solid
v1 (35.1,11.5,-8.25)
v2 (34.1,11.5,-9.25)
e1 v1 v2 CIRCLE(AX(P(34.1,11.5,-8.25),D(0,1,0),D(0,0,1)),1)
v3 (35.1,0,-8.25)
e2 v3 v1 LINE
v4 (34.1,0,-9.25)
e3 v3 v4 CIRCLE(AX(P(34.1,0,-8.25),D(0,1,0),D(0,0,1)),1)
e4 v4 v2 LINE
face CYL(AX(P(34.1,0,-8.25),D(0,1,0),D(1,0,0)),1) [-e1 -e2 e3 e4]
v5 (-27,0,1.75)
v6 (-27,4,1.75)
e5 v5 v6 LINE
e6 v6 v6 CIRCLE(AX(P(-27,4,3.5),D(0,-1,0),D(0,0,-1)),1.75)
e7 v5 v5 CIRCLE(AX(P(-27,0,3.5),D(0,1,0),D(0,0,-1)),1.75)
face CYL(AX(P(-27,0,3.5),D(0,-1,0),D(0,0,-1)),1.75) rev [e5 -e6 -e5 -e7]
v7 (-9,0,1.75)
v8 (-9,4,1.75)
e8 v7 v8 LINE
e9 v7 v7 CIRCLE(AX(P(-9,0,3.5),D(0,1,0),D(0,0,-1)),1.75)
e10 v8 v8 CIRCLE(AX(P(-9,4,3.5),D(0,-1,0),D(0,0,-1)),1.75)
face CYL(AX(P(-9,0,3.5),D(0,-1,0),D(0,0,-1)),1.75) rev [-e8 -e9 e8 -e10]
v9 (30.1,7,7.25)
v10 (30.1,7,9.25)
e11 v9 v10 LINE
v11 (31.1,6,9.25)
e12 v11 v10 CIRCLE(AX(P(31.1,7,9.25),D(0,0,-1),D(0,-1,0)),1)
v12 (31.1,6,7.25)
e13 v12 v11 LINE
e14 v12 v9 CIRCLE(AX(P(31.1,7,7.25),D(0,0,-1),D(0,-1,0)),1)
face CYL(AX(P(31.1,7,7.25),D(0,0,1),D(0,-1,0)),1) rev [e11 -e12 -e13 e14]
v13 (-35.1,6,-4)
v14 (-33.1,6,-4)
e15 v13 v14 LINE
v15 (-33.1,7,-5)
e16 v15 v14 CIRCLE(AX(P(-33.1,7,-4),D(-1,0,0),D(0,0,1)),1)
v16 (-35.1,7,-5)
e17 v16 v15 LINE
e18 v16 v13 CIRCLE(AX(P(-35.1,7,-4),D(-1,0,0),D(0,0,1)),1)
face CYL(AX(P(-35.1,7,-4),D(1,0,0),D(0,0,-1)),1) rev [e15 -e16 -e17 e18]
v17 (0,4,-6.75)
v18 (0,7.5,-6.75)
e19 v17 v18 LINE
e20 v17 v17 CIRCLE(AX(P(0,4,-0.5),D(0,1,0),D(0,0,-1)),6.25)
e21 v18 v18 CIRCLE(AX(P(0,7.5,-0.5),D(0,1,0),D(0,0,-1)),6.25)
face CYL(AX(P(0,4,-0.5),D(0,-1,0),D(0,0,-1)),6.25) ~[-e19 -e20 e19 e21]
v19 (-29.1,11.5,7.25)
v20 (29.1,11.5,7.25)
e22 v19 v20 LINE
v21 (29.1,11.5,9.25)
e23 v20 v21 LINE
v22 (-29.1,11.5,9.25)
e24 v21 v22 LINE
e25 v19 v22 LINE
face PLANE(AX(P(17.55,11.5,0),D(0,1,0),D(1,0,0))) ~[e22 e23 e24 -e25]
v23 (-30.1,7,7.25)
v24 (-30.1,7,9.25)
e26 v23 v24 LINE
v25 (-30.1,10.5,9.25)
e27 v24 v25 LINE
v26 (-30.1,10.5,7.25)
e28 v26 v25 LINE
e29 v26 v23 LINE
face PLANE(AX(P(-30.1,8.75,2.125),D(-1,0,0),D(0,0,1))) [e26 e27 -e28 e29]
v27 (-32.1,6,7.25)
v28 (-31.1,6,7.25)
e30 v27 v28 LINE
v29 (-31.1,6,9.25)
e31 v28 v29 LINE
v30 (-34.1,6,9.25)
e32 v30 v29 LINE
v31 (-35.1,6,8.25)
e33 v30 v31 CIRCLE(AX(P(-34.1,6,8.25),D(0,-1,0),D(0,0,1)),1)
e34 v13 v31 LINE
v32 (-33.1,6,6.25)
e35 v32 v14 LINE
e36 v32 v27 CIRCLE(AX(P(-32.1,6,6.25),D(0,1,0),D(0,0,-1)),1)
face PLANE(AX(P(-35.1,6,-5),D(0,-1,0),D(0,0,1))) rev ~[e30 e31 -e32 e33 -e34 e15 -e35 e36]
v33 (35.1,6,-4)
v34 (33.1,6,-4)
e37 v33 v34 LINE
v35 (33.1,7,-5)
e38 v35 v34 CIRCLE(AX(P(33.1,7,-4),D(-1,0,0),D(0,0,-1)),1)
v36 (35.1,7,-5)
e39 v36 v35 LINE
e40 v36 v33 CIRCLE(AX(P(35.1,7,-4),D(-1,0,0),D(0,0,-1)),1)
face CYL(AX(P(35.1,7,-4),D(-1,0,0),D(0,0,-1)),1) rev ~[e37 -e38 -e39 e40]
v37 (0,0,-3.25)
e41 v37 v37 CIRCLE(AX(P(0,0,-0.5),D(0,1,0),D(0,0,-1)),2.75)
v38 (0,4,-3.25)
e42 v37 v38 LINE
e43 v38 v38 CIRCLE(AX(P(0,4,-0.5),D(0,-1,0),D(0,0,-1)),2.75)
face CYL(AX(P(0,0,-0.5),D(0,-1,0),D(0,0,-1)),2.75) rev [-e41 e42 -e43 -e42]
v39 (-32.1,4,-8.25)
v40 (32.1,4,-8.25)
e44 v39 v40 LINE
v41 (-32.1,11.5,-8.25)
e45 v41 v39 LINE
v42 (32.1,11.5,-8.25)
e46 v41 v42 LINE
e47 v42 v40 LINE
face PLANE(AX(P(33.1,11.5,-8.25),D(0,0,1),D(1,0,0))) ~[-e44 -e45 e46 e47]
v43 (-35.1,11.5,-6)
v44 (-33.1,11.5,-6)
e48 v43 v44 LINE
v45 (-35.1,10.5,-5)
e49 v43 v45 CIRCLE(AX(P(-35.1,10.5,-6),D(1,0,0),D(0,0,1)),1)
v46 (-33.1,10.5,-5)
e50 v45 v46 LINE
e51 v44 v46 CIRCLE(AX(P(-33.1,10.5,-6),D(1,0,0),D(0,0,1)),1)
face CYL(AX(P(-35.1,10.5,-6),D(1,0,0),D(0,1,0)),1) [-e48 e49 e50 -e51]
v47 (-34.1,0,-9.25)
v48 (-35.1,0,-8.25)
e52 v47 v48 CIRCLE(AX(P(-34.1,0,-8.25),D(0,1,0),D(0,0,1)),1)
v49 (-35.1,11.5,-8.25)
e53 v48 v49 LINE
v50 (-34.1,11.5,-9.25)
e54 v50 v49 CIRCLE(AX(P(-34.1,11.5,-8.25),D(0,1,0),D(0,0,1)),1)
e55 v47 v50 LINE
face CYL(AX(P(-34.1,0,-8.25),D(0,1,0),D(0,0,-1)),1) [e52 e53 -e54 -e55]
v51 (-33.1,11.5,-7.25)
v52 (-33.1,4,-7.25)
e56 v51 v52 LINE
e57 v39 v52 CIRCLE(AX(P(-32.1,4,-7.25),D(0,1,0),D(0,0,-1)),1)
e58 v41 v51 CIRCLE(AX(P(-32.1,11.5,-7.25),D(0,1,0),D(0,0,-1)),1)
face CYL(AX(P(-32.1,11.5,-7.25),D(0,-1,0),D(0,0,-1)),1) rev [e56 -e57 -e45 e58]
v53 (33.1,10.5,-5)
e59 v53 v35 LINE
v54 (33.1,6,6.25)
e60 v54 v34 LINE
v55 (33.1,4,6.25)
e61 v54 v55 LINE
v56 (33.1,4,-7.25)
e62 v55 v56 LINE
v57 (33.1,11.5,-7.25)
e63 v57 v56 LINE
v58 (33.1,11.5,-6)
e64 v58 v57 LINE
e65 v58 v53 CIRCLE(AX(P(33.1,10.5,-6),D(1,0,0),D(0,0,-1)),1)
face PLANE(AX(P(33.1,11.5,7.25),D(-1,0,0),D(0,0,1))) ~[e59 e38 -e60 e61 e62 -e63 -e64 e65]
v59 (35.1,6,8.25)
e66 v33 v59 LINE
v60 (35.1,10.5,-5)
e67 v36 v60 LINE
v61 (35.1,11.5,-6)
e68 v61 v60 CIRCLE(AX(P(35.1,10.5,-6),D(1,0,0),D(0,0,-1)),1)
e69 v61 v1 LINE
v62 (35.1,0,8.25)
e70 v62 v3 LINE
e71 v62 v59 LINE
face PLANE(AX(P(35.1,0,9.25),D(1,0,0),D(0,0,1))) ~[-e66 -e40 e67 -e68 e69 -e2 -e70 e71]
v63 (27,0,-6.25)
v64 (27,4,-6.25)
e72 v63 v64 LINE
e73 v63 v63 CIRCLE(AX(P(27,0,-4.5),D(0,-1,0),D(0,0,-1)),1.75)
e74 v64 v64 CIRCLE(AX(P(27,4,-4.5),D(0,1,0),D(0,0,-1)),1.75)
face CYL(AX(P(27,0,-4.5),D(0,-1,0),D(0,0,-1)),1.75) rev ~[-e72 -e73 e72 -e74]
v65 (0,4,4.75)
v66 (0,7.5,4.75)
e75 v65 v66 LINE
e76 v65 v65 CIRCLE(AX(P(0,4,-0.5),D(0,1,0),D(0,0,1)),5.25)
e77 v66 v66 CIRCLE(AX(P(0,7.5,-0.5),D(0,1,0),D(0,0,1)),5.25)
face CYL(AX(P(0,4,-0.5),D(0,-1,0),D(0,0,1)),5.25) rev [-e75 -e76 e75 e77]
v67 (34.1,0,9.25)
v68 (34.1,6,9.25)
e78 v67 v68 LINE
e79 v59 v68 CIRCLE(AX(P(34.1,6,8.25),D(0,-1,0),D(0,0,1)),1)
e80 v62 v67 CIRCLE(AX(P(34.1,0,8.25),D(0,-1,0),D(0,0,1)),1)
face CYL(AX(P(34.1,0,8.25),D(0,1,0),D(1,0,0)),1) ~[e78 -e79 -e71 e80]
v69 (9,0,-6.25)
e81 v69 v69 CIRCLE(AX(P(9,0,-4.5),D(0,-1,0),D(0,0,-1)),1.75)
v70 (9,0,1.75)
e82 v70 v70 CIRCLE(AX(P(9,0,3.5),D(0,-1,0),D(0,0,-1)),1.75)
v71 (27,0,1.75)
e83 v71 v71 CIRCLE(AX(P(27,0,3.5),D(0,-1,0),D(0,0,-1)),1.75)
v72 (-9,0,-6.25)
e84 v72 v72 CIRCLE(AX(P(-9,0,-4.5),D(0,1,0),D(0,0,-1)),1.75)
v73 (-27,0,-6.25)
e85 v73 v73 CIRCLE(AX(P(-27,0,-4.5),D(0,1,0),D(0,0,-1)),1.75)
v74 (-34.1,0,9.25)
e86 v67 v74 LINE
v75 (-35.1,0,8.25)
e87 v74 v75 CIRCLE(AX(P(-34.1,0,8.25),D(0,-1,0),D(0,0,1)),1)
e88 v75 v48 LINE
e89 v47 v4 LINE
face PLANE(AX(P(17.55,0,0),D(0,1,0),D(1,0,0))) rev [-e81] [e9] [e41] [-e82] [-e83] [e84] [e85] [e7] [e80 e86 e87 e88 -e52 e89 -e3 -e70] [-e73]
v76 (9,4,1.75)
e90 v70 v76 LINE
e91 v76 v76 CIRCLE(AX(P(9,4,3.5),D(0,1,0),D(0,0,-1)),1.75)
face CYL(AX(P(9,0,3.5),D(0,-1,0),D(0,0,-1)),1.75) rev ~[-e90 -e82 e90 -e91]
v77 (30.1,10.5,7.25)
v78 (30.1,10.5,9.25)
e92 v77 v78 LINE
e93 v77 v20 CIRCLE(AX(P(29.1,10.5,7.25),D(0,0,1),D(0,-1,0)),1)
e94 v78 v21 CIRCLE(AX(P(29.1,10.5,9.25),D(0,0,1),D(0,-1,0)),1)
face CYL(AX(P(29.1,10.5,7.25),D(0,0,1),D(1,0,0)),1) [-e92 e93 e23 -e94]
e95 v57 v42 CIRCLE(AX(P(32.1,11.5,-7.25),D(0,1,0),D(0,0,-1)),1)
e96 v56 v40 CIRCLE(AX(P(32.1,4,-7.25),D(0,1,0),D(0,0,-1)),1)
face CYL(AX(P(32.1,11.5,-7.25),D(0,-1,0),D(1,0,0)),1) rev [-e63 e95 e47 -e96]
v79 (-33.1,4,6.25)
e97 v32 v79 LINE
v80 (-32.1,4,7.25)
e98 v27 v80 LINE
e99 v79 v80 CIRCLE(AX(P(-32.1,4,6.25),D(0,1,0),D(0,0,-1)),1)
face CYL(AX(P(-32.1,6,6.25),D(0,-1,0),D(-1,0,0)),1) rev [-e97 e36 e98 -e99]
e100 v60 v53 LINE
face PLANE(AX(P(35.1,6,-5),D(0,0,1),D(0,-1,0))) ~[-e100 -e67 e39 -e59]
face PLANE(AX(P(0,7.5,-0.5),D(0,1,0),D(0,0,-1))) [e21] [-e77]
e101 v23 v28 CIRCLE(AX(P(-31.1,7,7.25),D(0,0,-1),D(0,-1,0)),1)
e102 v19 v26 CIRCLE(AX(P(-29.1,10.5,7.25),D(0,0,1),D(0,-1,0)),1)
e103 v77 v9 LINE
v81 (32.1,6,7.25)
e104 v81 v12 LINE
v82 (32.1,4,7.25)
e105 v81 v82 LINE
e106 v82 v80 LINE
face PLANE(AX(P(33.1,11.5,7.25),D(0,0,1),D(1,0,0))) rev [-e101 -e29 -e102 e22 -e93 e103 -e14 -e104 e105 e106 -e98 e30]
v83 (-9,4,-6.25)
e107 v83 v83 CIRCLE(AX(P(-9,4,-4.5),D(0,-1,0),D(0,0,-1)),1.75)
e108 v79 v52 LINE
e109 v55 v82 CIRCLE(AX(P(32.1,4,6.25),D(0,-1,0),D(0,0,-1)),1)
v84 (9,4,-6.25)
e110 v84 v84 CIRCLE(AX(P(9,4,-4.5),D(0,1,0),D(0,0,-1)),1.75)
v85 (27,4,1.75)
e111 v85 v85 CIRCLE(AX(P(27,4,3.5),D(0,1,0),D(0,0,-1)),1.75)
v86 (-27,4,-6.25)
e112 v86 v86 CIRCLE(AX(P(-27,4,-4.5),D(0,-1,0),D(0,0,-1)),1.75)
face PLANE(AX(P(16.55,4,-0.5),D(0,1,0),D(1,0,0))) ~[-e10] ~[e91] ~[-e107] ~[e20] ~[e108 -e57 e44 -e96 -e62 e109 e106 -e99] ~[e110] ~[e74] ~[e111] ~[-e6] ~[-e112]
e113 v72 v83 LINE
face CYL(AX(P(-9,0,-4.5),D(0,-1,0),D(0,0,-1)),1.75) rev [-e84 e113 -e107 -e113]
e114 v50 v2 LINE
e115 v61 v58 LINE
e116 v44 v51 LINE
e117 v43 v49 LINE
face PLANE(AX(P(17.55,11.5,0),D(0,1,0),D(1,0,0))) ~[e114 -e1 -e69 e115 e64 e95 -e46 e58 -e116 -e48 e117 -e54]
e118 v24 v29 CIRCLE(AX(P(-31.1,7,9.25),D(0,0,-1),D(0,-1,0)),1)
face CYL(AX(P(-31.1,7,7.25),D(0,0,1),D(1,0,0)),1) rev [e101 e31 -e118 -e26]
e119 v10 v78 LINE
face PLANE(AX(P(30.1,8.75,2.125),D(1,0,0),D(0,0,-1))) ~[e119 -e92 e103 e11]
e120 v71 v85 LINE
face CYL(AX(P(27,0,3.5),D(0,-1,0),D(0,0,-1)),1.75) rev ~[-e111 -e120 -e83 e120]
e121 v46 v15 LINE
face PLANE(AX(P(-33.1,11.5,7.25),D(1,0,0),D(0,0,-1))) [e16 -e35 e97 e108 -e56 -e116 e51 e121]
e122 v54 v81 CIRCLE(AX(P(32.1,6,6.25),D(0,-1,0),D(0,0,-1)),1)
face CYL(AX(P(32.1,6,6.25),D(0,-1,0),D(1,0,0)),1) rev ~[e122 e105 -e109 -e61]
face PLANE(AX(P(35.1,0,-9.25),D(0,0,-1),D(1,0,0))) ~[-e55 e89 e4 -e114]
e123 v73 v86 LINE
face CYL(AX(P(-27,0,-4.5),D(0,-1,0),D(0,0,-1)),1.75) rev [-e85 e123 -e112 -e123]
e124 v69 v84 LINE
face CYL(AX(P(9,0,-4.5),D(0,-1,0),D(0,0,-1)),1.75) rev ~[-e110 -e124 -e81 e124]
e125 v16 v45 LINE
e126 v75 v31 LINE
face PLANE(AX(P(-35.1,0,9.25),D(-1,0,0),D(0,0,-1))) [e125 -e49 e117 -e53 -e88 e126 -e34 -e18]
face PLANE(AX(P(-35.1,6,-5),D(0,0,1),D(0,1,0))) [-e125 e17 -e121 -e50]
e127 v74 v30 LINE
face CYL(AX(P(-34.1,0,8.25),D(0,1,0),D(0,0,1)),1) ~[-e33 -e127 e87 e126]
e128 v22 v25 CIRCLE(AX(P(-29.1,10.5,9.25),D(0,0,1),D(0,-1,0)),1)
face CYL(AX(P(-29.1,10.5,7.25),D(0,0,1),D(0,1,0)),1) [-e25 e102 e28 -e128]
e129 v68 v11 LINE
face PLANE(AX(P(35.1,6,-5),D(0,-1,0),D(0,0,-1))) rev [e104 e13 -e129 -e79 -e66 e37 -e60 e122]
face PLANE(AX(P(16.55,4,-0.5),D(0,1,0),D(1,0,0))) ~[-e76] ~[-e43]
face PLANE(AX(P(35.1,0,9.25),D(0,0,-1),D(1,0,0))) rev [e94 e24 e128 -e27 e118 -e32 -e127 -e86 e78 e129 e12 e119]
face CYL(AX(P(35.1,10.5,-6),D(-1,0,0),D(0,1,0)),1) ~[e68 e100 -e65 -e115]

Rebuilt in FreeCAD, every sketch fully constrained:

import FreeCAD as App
import Part
import Sketcher
from FreeCAD import Vector


def edges_at(feature, points):
    """Names of the edges that pass closest to the given points."""
    edges = feature.Shape.Edges
    near = lambda p: min(range(len(edges)), key=lambda i: edges[i].distToShape(Part.Vertex(*p))[0])
    return sorted({f"Edge{near(p) + 1}" for p in points})


def add_polygon(sketch, points):
    """Adds a closed chain of lines whose ends are joined by coincident constraints."""
    first, n = sketch.GeometryCount, len(points)
    for a, b in zip(points, points[1:] + points[:1]):
        sketch.addGeometry(Part.LineSegment(App.Vector(*a, 0), App.Vector(*b, 0)), False)
    for i in range(n):
        sketch.addConstraint(Sketcher.Constraint("Coincident", first + i, 2, first + (i + 1) % n, 1))

doc = App.newDocument("Part")
body = doc.addObject("PartDesign::Body", "Body")

# Sketch on XZ plane
sketch1 = body.newObject("Sketcher::SketchObject", "Sketch")
sketch1.AttachmentSupport = (doc.getObject("XZ_Plane"), [""])
sketch1.MapMode = "FlatFace"
add_polygon(sketch1, [(-35, -9), (-35, 9), (0, 9), (0, -9)])  # lines 0-3
sketch1.addConstraint([
    Sketcher.Constraint("Vertical", 0),
    Sketcher.Constraint("Horizontal", 1),
    Sketcher.Constraint("Vertical", 2),
    Sketcher.Constraint("Horizontal", 3),
    Sketcher.Constraint("Symmetric", 1, 2, 2, 2, -1, 1),
    Sketcher.Constraint("DistanceX", 1, 1, 1, 2, 35.1),
    Sketcher.Constraint("DistanceY", 0, 1, 0, 2, 18.5),
])
pad1 = body.newObject("PartDesign::Pad", "Pad")
pad1.Profile = sketch1
pad1.Length = 11.5
pad1.Reversed = True

# Sketch on XZ plane
sketch2 = body.newObject("Sketcher::SketchObject", "Sketch001")
sketch2.AttachmentSupport = (doc.getObject("XZ_Plane"), [""])
sketch2.MapMode = "FlatFace"
sketch2.AttachmentOffset = App.Placement(Vector(0, 0, -11.5), App.Rotation())
add_polygon(sketch2, [(-33, -8), (-33, 7), (0, 7), (0, -8)])  # lines 0-3
sketch2.addConstraint([
    Sketcher.Constraint("Vertical", 0),
    Sketcher.Constraint("Horizontal", 1),
    Sketcher.Constraint("Vertical", 2),
    Sketcher.Constraint("Horizontal", 3),
    Sketcher.Constraint("PointOnObject", 1, 2, -2),
    Sketcher.Constraint("DistanceX", 1, 1, 1, 2, 33.1),
    Sketcher.Constraint("DistanceY", 0, 1, 0, 2, 15.5),
    Sketcher.Constraint("DistanceY", -1, 1, 0, 2, 7.25),
])
pocket1 = body.newObject("PartDesign::Pocket", "Pocket")
pocket1.Profile = sketch2
pocket1.Length = 7.5
pocket1.Reversed = True

# Sketch on XZ plane
sketch3 = body.newObject("Sketcher::SketchObject", "Sketch002")
sketch3.AttachmentSupport = (doc.getObject("XZ_Plane"), [""])
sketch3.MapMode = "FlatFace"
sketch3.addGeometry([
    Part.Circle(Vector(-27, 3.5, 0), Vector(0, 0, 1), 1.8),
    Part.Circle(Vector(-9, 3.5, 0), Vector(0, 0, 1), 1.8),
    Part.Circle(Vector(-27, -4.5, 0), Vector(0, 0, 1), 1.8),
    Part.Circle(Vector(-9, -4.5, 0), Vector(0, 0, 1), 1.8),
], False)
sketch3.addConstraint([
    Sketcher.Constraint("Equal", 0, 1),
    Sketcher.Constraint("Equal", 1, 2),
    Sketcher.Constraint("Equal", 2, 3),
    Sketcher.Constraint("Horizontal", 0, 3, 1, 3),
    Sketcher.Constraint("Horizontal", 2, 3, 3, 3),
    Sketcher.Constraint("Vertical", 0, 3, 2, 3),
    Sketcher.Constraint("Vertical", 1, 3, 3, 3),
    Sketcher.Constraint("Diameter", 0, 3.5),
    Sketcher.Constraint("DistanceX", 0, 3, -1, 1, 27.0),
    Sketcher.Constraint("DistanceX", 1, 3, -1, 1, 9.0),
    Sketcher.Constraint("DistanceY", 2, 3, 0, 3, 8.0),
    Sketcher.Constraint("DistanceY", -1, 1, 0, 3, 3.5),
])
pocket2 = body.newObject("PartDesign::Pocket", "Pocket001")
pocket2.Profile = sketch3
pocket2.Type = "ThroughAll"

# Sketch on YZ plane
sketch4 = body.newObject("Sketcher::SketchObject", "Sketch003")
sketch4.AttachmentSupport = (doc.getObject("YZ_Plane"), [""])
sketch4.MapMode = "FlatFace"
sketch4.AttachmentOffset = App.Placement(Vector(0, 0, -35.1), App.Rotation())
add_polygon(sketch4, [(12, -5), (6, -5), (6, 9), (12, 9)])  # lines 0-3
sketch4.addConstraint([
    Sketcher.Constraint("Horizontal", 0),
    Sketcher.Constraint("Vertical", 1),
    Sketcher.Constraint("Horizontal", 2),
    Sketcher.Constraint("Vertical", 3),
    Sketcher.Constraint("DistanceX", 0, 2, 0, 1, 5.5),
    Sketcher.Constraint("DistanceX", -1, 1, 0, 2, 6.0),
    Sketcher.Constraint("DistanceY", 0, 2, -1, 1, 5.0),
    Sketcher.Constraint("DistanceY", 1, 1, 1, 2, 14.25),
])
pocket3 = body.newObject("PartDesign::Pocket", "Pocket002")
pocket3.Profile = sketch4
pocket3.Length = 5
pocket3.Reversed = True
body2 = doc.addObject("PartDesign::Body", "Body001")
doc.recompute()

body2.BaseFeature = body
doc.recompute()

mirroring = doc.addObject("Part::Mirroring", "Mirroring")
mirroring.Source = body
mirroring.Base = Vector(0, 0, 0)
mirroring.Normal = Vector(1, 0, 0)
body3 = doc.addObject("PartDesign::Body", "Body002")
body3.BaseFeature = mirroring
boolean = body2.newObject("PartDesign::Boolean", "Boolean")
boolean.Type = "Fuse"
boolean.addObjects([body3])
doc.recompute()

# Sketch on XZ plane
sketch5 = body2.newObject("Sketcher::SketchObject", "Sketch004")
sketch5.AttachmentSupport = (doc.getObject("XZ_Plane001"), [""])
sketch5.MapMode = "FlatFace"
sketch5.addGeometry(Part.Circle(Vector(0, -0.5, 0), Vector(0, 0, 1), 2.8), False)
sketch5.addConstraint([
    Sketcher.Constraint("PointOnObject", 0, 3, -2),
    Sketcher.Constraint("Diameter", 0, 5.5),
    Sketcher.Constraint("DistanceY", 0, 3, -1, 1, 0.5),
])
pocket4 = body2.newObject("PartDesign::Pocket", "Pocket003")
pocket4.Profile = sketch5
pocket4.Type = "ThroughAll"

# Sketch on XZ plane
sketch6 = body2.newObject("Sketcher::SketchObject", "Sketch005")
sketch6.AttachmentSupport = (doc.getObject("XZ_Plane001"), [""])
sketch6.MapMode = "FlatFace"
sketch6.AttachmentOffset = App.Placement(Vector(0, 0, -4), App.Rotation())
sketch6.addGeometry([
    Part.Circle(Vector(0, 0, 0), Vector(0, 0, 1), 6),
    Part.Circle(Vector(0, 0, 0), Vector(0, 0, 1), 5),
], False)
sketch6.addConstraint([
    Sketcher.Constraint("Coincident", 1, 3, 0, 3),
    Sketcher.Constraint("PointOnObject", 0, 3, -2),
    Sketcher.Constraint("Diameter", 0, 12.5),
    Sketcher.Constraint("Diameter", 1, 10.5),
    Sketcher.Constraint("DistanceY", 0, 3, -1, 1, 0.5),
])
pad2 = body2.newObject("PartDesign::Pad", "Pad001")
pad2.Profile = sketch6
pad2.Length = 3.5
pad2.Reversed = True
doc.recompute()

fillet = body2.newObject("PartDesign::Fillet", "Fillet")
fillet.Base = (pad2, edges_at(pad2, [
    (-34.1, 6, -5),
    (-34.1, 11.5, -5),
    (-30.1, 11.5, 8.25),
    (-30.1, 6, 8.25),
    (34.1, 11.5, -5),
    (34.1, 6, -5),
    (30.1, 11.5, 8.25),
    (30.1, 6, 8.25),
]))
fillet.Radius = 1
doc.recompute()

fillet2 = body2.newObject("PartDesign::Fillet", "Fillet001")
fillet2.Base = (fillet, edges_at(fillet, [
    (-33.1, 7.75, -8.25),
    (-33.1, 5, 7.25),
    (-35.1, 3, 9.25),
    (35.1, 5.75, -9.25),
    (35.1, 3, 9.25),
    (33.1, 7.75, -8.25),
    (33.1, 5, 7.25),
    (-35.1, 5.75, -9.25),
]))
fillet2.Radius = 1
mirroring.Visibility = False

doc.recompute()
